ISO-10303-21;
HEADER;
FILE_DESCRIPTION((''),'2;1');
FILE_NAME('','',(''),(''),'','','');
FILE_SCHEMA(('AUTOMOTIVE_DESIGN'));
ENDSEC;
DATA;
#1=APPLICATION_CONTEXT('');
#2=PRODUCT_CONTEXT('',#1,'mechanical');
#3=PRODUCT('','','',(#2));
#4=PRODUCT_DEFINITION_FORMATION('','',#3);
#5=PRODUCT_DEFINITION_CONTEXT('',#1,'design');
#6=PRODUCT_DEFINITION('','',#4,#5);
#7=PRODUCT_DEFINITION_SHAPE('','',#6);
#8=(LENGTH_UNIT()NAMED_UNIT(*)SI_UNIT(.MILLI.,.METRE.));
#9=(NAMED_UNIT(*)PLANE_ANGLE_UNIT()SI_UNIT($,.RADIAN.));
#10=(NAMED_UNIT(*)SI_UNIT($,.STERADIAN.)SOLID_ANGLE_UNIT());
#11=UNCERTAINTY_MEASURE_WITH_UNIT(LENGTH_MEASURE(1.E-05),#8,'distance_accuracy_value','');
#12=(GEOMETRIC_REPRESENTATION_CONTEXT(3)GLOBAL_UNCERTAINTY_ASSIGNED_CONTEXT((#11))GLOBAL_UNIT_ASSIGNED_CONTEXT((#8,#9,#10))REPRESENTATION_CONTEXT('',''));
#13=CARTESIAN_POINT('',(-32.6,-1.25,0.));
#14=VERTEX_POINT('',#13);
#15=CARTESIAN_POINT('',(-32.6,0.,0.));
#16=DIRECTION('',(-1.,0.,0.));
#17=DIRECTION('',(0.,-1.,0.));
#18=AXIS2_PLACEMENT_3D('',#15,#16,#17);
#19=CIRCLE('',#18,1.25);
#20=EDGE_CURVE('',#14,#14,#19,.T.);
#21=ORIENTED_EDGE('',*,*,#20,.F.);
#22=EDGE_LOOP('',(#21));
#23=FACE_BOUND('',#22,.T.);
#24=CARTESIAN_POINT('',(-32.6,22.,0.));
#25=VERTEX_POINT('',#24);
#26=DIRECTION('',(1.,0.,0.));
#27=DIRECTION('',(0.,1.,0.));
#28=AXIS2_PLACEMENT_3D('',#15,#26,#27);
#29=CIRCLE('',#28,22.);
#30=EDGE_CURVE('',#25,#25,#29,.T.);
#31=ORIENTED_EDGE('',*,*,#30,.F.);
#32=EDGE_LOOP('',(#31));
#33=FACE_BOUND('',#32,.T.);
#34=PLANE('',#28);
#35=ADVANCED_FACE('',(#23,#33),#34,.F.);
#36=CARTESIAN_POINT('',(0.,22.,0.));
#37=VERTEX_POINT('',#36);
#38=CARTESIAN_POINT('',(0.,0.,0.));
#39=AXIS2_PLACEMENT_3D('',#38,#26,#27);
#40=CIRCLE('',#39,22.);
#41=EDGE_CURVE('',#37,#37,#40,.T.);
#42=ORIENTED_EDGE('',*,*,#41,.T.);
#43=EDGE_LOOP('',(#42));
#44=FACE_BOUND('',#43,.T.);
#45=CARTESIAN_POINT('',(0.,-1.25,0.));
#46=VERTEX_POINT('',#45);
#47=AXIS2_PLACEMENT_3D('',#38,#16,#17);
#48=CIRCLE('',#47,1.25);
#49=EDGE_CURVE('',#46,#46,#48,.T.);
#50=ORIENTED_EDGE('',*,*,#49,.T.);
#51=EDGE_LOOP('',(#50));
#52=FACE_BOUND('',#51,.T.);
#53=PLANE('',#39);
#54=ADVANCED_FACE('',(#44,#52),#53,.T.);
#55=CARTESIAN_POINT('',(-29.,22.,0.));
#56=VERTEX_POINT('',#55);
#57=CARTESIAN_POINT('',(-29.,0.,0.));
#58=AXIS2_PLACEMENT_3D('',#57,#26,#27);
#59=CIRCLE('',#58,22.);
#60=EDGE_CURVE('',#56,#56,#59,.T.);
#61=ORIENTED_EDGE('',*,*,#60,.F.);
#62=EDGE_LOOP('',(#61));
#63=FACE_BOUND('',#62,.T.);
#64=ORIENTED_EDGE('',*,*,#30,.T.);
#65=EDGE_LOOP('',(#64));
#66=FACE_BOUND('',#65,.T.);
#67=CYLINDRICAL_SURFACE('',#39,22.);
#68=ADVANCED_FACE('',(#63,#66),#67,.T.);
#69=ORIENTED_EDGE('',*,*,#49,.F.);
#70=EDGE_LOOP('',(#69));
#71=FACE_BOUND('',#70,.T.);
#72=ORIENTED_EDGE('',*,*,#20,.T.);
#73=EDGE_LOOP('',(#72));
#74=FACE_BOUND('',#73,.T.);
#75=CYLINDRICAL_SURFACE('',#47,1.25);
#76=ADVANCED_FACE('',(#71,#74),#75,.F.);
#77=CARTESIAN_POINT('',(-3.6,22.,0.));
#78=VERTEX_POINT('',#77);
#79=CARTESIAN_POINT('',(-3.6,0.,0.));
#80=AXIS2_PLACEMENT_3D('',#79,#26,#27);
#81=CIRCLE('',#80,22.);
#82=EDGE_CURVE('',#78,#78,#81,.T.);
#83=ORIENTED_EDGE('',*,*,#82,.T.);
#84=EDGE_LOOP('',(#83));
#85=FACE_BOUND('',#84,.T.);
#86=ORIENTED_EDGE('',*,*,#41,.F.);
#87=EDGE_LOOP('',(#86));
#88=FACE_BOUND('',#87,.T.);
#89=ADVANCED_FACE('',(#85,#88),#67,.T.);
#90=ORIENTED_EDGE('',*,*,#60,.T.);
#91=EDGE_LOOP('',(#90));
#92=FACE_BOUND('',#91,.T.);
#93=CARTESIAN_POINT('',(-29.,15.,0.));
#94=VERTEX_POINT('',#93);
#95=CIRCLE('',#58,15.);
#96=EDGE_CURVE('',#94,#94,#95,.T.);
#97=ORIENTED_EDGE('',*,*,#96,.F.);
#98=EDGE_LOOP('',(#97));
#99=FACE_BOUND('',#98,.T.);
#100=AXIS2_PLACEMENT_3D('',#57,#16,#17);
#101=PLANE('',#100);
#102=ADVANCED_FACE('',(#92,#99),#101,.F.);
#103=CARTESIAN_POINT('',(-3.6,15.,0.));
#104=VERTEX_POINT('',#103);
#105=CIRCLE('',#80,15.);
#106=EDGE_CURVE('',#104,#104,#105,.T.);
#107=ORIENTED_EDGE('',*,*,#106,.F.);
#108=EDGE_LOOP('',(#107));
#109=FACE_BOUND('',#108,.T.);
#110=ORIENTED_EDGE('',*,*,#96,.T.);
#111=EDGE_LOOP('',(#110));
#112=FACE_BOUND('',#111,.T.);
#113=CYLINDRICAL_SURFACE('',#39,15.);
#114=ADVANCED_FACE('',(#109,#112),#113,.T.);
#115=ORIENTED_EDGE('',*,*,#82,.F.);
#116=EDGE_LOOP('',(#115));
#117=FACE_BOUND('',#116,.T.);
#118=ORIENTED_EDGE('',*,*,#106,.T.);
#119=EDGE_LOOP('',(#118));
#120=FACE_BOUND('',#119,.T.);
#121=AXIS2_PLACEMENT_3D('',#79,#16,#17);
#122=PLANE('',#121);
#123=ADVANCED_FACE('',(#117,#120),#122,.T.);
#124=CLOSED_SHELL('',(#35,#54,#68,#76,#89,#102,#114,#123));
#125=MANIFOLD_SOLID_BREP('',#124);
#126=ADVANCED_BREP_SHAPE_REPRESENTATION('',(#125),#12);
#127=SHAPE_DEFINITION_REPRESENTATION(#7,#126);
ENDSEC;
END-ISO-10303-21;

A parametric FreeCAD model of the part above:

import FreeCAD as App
import Part
import Sketcher
from FreeCAD import Vector
Q = App.Units.Quantity

doc = App.newDocument("Part")
body = doc.addObject("PartDesign::Body", "Body")

sketch1 = body.newObject("Sketcher::SketchObject", "Sketch")
sketch1.AttachmentSupport = (doc.getObject("XY_Plane"), [""])
sketch1.MapMode = "FlatFace"
sketch1.addGeometry([
    Part.LineSegment(Vector(-32.6, 0, 0), Vector(0, 0, 0)),
    Part.LineSegment(Vector(0, 0, 0), Vector(0, 22, 0)),
    Part.LineSegment(Vector(0, 22, 0), Vector(-3.6, 22, 0)),
    Part.LineSegment(Vector(-3.6, 22, 0), Vector(-3.6, 15, 0)),
    Part.LineSegment(Vector(-3.6, 15, 0), Vector(-29, 15, 0)),
    Part.LineSegment(Vector(-29, 15, 0), Vector(-29, 22, 0)),
    Part.LineSegment(Vector(-29, 22, 0), Vector(-32.6, 22, 0)),
    Part.LineSegment(Vector(-32.6, 22, 0), Vector(-32.6, 0, 0)),
], False)
sketch1.addConstraint([
    Sketcher.Constraint("Coincident", 0, 2, 1, 1),
    Sketcher.Constraint("Coincident", 1, 2, 2, 1),
    Sketcher.Constraint("Coincident", 2, 2, 3, 1),
    Sketcher.Constraint("Coincident", 3, 2, 4, 1),
    Sketcher.Constraint("Coincident", 4, 2, 5, 1),
    Sketcher.Constraint("Coincident", 5, 2, 6, 1),
    Sketcher.Constraint("Coincident", 6, 2, 7, 1),
    Sketcher.Constraint("Coincident", 7, 2, 0, 1),
    Sketcher.Constraint("Horizontal", 0),
    Sketcher.Constraint("Vertical", 1),
    Sketcher.Constraint("Horizontal", 2),
    Sketcher.Constraint("Vertical", 3),
    Sketcher.Constraint("Horizontal", 4),
    Sketcher.Constraint("Vertical", 5),
    Sketcher.Constraint("Horizontal", 6),
    Sketcher.Constraint("Vertical", 7),
    Sketcher.Constraint("Coincident", 0, 2, -1, 1),
    Sketcher.Constraint("Horizontal", 2, 2, 5, 2),
    Sketcher.Constraint("Equal", 2, 6),
    Sketcher.Constraint("DistanceY", 1, 1, 1, 2, Q("22 mm")),
    Sketcher.Constraint("DistanceY", 3, 2, 3, 1, Q("7 mm")),
    Sketcher.Constraint("DistanceX", 0, 1, 0, 2, Q("32.6 mm")),
    Sketcher.Constraint("DistanceX", 2, 2, 2, 1, Q("3.6 mm")),
])
revolution = body.newObject("PartDesign::Revolution", "Revolution")
revolution.Profile = sketch1
revolution.ReferenceAxis = (sketch1, ["H_Axis"])
revolution.Angle = 360

sketch2 = body.newObject("Sketcher::SketchObject", "Sketch001")
sketch2.AttachmentSupport = (doc.getObject("YZ_Plane"), [""])
sketch2.MapMode = "FlatFace"
sketch2.AttachmentOffset = App.Placement(Vector(0, 0, -32.6), App.Rotation())
sketch2.addGeometry(Part.Circle(Vector(0, 0, 0), Vector(0, 0, 1), 1.25), False)
sketch2.addConstraint([
    Sketcher.Constraint("Coincident", 0, 3, -1, 1),
    Sketcher.Constraint("Diameter", 0, Q("2.5 mm")),
])
pocket1 = body.newObject("PartDesign::Pocket", "Pocket")
pocket1.Profile = sketch2
pocket1.Type = "ThroughAll"
pocket1.Reversed = True

doc.recompute()
